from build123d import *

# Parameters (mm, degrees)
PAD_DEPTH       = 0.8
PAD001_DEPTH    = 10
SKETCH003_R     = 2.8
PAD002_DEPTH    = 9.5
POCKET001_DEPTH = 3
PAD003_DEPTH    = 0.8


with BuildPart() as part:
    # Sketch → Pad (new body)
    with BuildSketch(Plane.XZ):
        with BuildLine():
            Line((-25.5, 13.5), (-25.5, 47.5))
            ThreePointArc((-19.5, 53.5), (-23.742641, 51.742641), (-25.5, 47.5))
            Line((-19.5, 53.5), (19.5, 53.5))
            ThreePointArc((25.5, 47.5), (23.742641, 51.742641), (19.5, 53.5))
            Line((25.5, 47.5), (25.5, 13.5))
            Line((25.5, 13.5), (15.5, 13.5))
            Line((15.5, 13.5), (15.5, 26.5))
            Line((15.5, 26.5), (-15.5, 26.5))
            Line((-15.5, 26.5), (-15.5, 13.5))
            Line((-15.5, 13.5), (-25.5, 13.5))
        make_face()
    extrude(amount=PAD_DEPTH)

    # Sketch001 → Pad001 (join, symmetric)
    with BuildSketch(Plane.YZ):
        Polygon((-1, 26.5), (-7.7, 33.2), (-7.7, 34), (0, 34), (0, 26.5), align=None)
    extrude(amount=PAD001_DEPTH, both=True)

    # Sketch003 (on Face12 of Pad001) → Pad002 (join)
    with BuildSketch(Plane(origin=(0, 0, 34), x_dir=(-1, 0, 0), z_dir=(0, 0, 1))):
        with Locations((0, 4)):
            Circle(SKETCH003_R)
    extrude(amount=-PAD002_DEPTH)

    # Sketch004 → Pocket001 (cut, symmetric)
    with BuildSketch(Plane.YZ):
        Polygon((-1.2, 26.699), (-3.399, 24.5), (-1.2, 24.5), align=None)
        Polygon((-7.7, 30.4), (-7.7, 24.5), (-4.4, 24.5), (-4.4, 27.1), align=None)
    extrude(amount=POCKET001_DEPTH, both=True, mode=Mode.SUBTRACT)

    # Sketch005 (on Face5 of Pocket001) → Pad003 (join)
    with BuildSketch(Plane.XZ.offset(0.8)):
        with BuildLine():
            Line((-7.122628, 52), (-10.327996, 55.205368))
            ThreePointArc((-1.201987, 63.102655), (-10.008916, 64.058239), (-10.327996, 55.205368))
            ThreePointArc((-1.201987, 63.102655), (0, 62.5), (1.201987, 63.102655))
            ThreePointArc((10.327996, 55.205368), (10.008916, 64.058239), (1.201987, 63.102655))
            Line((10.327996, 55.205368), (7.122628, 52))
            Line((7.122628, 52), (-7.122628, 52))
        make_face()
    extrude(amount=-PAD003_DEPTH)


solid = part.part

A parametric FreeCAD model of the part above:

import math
import FreeCAD as App
import Part
import Sketcher
Q = App.Units.Quantity


def add_polygon(sketch, points):
    """Adds a closed chain of lines whose ends are joined by coincident constraints."""
    first, n = sketch.GeometryCount, len(points)
    for a, b in zip(points, points[1:] + points[:1]):
        sketch.addGeometry(Part.LineSegment(App.Vector(*a, 0), App.Vector(*b, 0)), False)
    for i in range(n):
        sketch.addConstraint(Sketcher.Constraint("Coincident", first + i, 2, first + (i + 1) % n, 1))

doc = App.newDocument("Part")
params = doc.addObject("Spreadsheet::Sheet", "Params")
for row, (alias, value) in enumerate([
    ("sketch1_radius", "5.999999 mm"),
    ("sketch1_width", "10 mm"),
    ("sketch1_width2", "31 mm"),
    ("sketch1_height", "34 mm"),
    ("sketch1_height2", "13 mm"),
    ("pad1_length", "0.8 mm"),
    ("sketch2_width", "1 mm"),
    ("sketch2_width2", "7.7 mm"),
    ("sketch2_height", "7.5 mm"),
    ("pad2_length", "20 mm"),
    ("sketch3_diameter", "5.6 mm"),
    ("pad3_length", "9.5 mm"),
    ("sketch4_width", "3.3 mm"),
    ("sketch4_height", "5.9 mm"),
    ("pocket1_length", "6 mm"),
    ("sketch5_radius", "1.500001 mm"),
    ("sketch5_radius2", "6.05 mm"),
    ("pad4_length", "0.8 mm"),
], start=1):
    params.set(f"A{row}", alias)
    params.set(f"B{row}", "=" + value)
    params.setAlias(f"B{row}", alias)

body = doc.addObject("PartDesign::Body", "Body")

# Sketch on XZ plane
sketch1 = body.newObject("Sketcher::SketchObject", "Sketch")
sketch1.AttachmentSupport = (doc.getObject("XZ_Plane"), [""])
sketch1.MapMode = "FlatFace"
sketch1.addGeometry([
    Part.LineSegment(App.Vector(-26, 48, 0), App.Vector(-26, 14, 0)),  # 0
    Part.LineSegment(App.Vector(-26, 14, 0), App.Vector(-16, 14, 0)),  # 1
    Part.LineSegment(App.Vector(-16, 14, 0), App.Vector(-16, 26, 0)),  # 2
    Part.LineSegment(App.Vector(-16, 26, 0), App.Vector(16, 26, 0)),  # 3
    Part.LineSegment(App.Vector(16, 26, 0), App.Vector(16, 14, 0)),  # 4
    Part.LineSegment(App.Vector(16, 14, 0), App.Vector(26, 14, 0)),  # 5
    Part.LineSegment(App.Vector(26, 14, 0), App.Vector(26, 48, 0)),  # 6
    Part.ArcOfCircle(Part.Circle(App.Vector(20, 48, 0), App.Vector(0, 0, 1), 6), math.radians(0), math.radians(90)),  # 7
    Part.LineSegment(App.Vector(20, 54, 0), App.Vector(-20, 54, 0)),  # 8
    Part.ArcOfCircle(Part.Circle(App.Vector(-20, 48, 0), App.Vector(0, 0, 1), 6), math.radians(90), math.radians(180)),  # 9
], False)
sketch1.addConstraint([
    Sketcher.Constraint("Coincident", 0, 2, 1, 1),
    Sketcher.Constraint("Coincident", 1, 2, 2, 1),
    Sketcher.Constraint("Coincident", 2, 2, 3, 1),
    Sketcher.Constraint("Coincident", 3, 2, 4, 1),
    Sketcher.Constraint("Coincident", 4, 2, 5, 1),
    Sketcher.Constraint("Coincident", 5, 2, 6, 1),
    Sketcher.Constraint("Tangent", 6, 2, 7, 1),
    Sketcher.Constraint("Tangent", 7, 2, 8, 1),
    Sketcher.Constraint("Tangent", 8, 2, 9, 1),
    Sketcher.Constraint("Tangent", 9, 2, 0, 1),
    Sketcher.Constraint("Vertical", 0),
    Sketcher.Constraint("Horizontal", 1),
    Sketcher.Constraint("Vertical", 2),
    Sketcher.Constraint("Horizontal", 3),
    Sketcher.Constraint("Vertical", 4),
    Sketcher.Constraint("Horizontal", 5),
    Sketcher.Constraint("Vertical", 6),
    Sketcher.Constraint("Horizontal", 8),
    Sketcher.Constraint("Equal", 7, 9),
    Sketcher.Constraint("Symmetric", 1, 2, 4, 2, -2),
    Sketcher.Constraint("Equal", 1, 5),
    Sketcher.Constraint("Radius", 7, Q("5.999999 mm")),
    Sketcher.Constraint("DistanceX", 1, 1, 1, 2, Q("10 mm")),
    Sketcher.Constraint("DistanceX", 3, 1, 3, 2, Q("31 mm")),
    Sketcher.Constraint("DistanceY", 0, 2, 0, 1, Q("34 mm")),
    Sketcher.Constraint("DistanceY", 2, 1, 2, 2, Q("13 mm")),
    Sketcher.Constraint("DistanceY", -1, 1, 7, 3, Q("47.500001 mm")),
])
sketch1.setExpression("Constraints[21]", "Params.sketch1_radius")
sketch1.setExpression("Constraints[22]", "Params.sketch1_width")
sketch1.setExpression("Constraints[23]", "Params.sketch1_width2")
sketch1.setExpression("Constraints[24]", "Params.sketch1_height")
sketch1.setExpression("Constraints[25]", "Params.sketch1_height2")
pad1 = body.newObject("PartDesign::Pad", "Pad")
pad1.Profile = sketch1
pad1.setExpression("Length", "Params.pad1_length")

# Sketch on YZ plane
sketch2 = body.newObject("Sketcher::SketchObject", "Sketch001")
sketch2.AttachmentSupport = (doc.getObject("YZ_Plane"), [""])
sketch2.MapMode = "FlatFace"
add_polygon(sketch2, [(-7.7, 33.2), (-1, 26.5), (0, 26.5), (0, 34), (-7.7, 34)])  # lines 0-4
sketch2.addConstraint([
    Sketcher.Constraint("Horizontal", 1),
    Sketcher.Constraint("Vertical", 2),
    Sketcher.Constraint("Horizontal", 3),
    Sketcher.Constraint("Vertical", 4),
    Sketcher.Constraint("PointOnObject", 1, 2, -2),
    Sketcher.Constraint("DistanceX", 1, 1, 1, 2, Q("1 mm")),
    Sketcher.Constraint("Angle", 0, Q("-45 deg")),
    Sketcher.Constraint("DistanceX", 3, 2, 3, 1, Q("7.7 mm")),
    Sketcher.Constraint("DistanceY", 2, 1, 2, 2, Q("7.5 mm")),
    Sketcher.Constraint("DistanceY", -1, 1, 2, 2, Q("34 mm")),
])
sketch2.setExpression("Constraints[10]", "Params.sketch2_width")
sketch2.setExpression("Constraints[12]", "Params.sketch2_width2")
sketch2.setExpression("Constraints[13]", "Params.sketch2_height")
pad2 = body.newObject("PartDesign::Pad", "Pad001")
pad2.Profile = sketch2
pad2.setExpression("Length", "Params.pad2_length")
pad2.Midplane = True

# Sketch on XY plane
sketch3 = body.newObject("Sketcher::SketchObject", "Sketch002")
sketch3.AttachmentSupport = (doc.getObject("XY_Plane"), [""])
sketch3.MapMode = "FlatFace"
sketch3.AttachmentOffset = App.Placement(App.Vector(0, 0, 34), App.Rotation())
sketch3.addGeometry(Part.Circle(App.Vector(0, -4, 0), App.Vector(0, 0, 1), 2.8), False)
sketch3.addConstraint([
    Sketcher.Constraint("PointOnObject", 0, 3, -2),
    Sketcher.Constraint("Diameter", 0, Q("5.6 mm")),
    Sketcher.Constraint("DistanceY", 0, 3, -1, 1, Q("4 mm")),
])
sketch3.setExpression("Constraints[1]", "Params.sketch3_diameter")
pad3 = body.newObject("PartDesign::Pad", "Pad002")
pad3.Profile = sketch3
pad3.setExpression("Length", "Params.pad3_length")
pad3.Reversed = True

# Sketch on YZ plane
sketch4 = body.newObject("Sketcher::SketchObject", "Sketch003")
sketch4.AttachmentSupport = (doc.getObject("YZ_Plane"), [""])
sketch4.MapMode = "FlatFace"
add_polygon(sketch4, [(-1.2, 26.7), (-3.4, 24.5), (-1.2, 24.5)])  # lines 0-2
add_polygon(sketch4, [(-7.7, 30.4), (-7.7, 24.5), (-4.4, 24.5), (-4.4, 27.1)])  # lines 3-6
sketch4.addConstraint([
    Sketcher.Constraint("Horizontal", 1),
    Sketcher.Constraint("Vertical", 2),
    Sketcher.Constraint("Vertical", 3),
    Sketcher.Constraint("Horizontal", 4),
    Sketcher.Constraint("Vertical", 5),
    Sketcher.Constraint("Perpendicular", 0, 6),
    Sketcher.Constraint("Horizontal", 1, 2, 3, 2),
    Sketcher.Constraint("Equal", 1, 2),
    Sketcher.Constraint("DistanceX", 4, 1, 4, 2, Q("3.3 mm")),
    Sketcher.Constraint("DistanceY", 3, 2, 3, 1, Q("5.9 mm")),
    Sketcher.Constraint("DistanceY", -1, 1, 0, 2, Q("24.5 mm")),
    Sketcher.Constraint("DistanceX", 1, 2, -1, 1, Q("1.2 mm")),
    Sketcher.Constraint("DistanceX", 3, 2, -1, 1, Q("7.7 mm")),
    Sketcher.Constraint("DistanceX", 1, 1, 1, 2, Q("2.199 mm")),
])
sketch4.setExpression("Constraints[15]", "Params.sketch4_width")
sketch4.setExpression("Constraints[16]", "Params.sketch4_height")
pocket1 = body.newObject("PartDesign::Pocket", "Pocket")
pocket1.Profile = sketch4
pocket1.setExpression("Length", "Params.pocket1_length")
pocket1.Midplane = True

# Sketch on XZ plane
sketch5 = body.newObject("Sketcher::SketchObject", "Sketch004")
sketch5.AttachmentSupport = (doc.getObject("XZ_Plane"), [""])
sketch5.MapMode = "FlatFace"
sketch5.AttachmentOffset = App.Placement(App.Vector(0, 0, 0.8), App.Rotation())
sketch5.addGeometry([
    Part.LineSegment(App.Vector(-10.3, 55.2, 0), App.Vector(-7.1, 52, 0)),  # 0
    Part.LineSegment(App.Vector(-7.1, 52, 0), App.Vector(7.1, 52, 0)),  # 1
    Part.LineSegment(App.Vector(7.1, 52, 0), App.Vector(10.3, 55.2, 0)),  # 2
    Part.ArcOfCircle(Part.Circle(App.Vector(6.1, 59.5, 0), App.Vector(0, 0, 1), 6), math.radians(-45), math.radians(143)),  # 3
    Part.ArcOfCircle(Part.Circle(App.Vector(0, 64, 0), App.Vector(0, 0, 1), 1.5), math.radians(-143), math.radians(-37)),  # 4
    Part.ArcOfCircle(Part.Circle(App.Vector(-6.1, 59.5, 0), App.Vector(0, 0, 1), 6), math.radians(37), math.radians(225)),  # 5
], False)
sketch5.addConstraint([
    Sketcher.Constraint("Coincident", 0, 2, 1, 1),
    Sketcher.Constraint("Coincident", 1, 2, 2, 1),
    Sketcher.Constraint("Tangent", 2, 2, 3, 1),
    Sketcher.Constraint("Tangent", 3, 2, 4, 2),
    Sketcher.Constraint("Tangent", 4, 1, 5, 1),
    Sketcher.Constraint("Tangent", 5, 2, 0, 1),
    Sketcher.Constraint("Horizontal", 1),
    Sketcher.Constraint("Equal", 3, 5),
    Sketcher.Constraint("Symmetric", 3, 3, 5, 3, -2),
    Sketcher.Constraint("Perpendicular", 0, 2),
    Sketcher.Constraint("Horizontal", 2, 2, 5, 2),
    Sketcher.Constraint("Radius", 4, Q("1.500001 mm")),
    Sketcher.Constraint("Radius", 3, Q("6.05 mm")),
    Sketcher.Constraint("DistanceY", -1, 1, 4, 3, Q("64.000001 mm")),
    Sketcher.Constraint("DistanceY", -1, 1, 0, 2, Q("52 mm")),
    Sketcher.Constraint("DistanceX", 5, 3, 3, 3, Q("12.1 mm")),
])
sketch5.setExpression("Constraints[11]", "Params.sketch5_radius")
sketch5.setExpression("Constraints[12]", "Params.sketch5_radius2")
pad4 = body.newObject("PartDesign::Pad", "Pad003")
pad4.Profile = sketch5
pad4.setExpression("Length", "Params.pad4_length")
pad4.Reversed = True

doc.recompute()
